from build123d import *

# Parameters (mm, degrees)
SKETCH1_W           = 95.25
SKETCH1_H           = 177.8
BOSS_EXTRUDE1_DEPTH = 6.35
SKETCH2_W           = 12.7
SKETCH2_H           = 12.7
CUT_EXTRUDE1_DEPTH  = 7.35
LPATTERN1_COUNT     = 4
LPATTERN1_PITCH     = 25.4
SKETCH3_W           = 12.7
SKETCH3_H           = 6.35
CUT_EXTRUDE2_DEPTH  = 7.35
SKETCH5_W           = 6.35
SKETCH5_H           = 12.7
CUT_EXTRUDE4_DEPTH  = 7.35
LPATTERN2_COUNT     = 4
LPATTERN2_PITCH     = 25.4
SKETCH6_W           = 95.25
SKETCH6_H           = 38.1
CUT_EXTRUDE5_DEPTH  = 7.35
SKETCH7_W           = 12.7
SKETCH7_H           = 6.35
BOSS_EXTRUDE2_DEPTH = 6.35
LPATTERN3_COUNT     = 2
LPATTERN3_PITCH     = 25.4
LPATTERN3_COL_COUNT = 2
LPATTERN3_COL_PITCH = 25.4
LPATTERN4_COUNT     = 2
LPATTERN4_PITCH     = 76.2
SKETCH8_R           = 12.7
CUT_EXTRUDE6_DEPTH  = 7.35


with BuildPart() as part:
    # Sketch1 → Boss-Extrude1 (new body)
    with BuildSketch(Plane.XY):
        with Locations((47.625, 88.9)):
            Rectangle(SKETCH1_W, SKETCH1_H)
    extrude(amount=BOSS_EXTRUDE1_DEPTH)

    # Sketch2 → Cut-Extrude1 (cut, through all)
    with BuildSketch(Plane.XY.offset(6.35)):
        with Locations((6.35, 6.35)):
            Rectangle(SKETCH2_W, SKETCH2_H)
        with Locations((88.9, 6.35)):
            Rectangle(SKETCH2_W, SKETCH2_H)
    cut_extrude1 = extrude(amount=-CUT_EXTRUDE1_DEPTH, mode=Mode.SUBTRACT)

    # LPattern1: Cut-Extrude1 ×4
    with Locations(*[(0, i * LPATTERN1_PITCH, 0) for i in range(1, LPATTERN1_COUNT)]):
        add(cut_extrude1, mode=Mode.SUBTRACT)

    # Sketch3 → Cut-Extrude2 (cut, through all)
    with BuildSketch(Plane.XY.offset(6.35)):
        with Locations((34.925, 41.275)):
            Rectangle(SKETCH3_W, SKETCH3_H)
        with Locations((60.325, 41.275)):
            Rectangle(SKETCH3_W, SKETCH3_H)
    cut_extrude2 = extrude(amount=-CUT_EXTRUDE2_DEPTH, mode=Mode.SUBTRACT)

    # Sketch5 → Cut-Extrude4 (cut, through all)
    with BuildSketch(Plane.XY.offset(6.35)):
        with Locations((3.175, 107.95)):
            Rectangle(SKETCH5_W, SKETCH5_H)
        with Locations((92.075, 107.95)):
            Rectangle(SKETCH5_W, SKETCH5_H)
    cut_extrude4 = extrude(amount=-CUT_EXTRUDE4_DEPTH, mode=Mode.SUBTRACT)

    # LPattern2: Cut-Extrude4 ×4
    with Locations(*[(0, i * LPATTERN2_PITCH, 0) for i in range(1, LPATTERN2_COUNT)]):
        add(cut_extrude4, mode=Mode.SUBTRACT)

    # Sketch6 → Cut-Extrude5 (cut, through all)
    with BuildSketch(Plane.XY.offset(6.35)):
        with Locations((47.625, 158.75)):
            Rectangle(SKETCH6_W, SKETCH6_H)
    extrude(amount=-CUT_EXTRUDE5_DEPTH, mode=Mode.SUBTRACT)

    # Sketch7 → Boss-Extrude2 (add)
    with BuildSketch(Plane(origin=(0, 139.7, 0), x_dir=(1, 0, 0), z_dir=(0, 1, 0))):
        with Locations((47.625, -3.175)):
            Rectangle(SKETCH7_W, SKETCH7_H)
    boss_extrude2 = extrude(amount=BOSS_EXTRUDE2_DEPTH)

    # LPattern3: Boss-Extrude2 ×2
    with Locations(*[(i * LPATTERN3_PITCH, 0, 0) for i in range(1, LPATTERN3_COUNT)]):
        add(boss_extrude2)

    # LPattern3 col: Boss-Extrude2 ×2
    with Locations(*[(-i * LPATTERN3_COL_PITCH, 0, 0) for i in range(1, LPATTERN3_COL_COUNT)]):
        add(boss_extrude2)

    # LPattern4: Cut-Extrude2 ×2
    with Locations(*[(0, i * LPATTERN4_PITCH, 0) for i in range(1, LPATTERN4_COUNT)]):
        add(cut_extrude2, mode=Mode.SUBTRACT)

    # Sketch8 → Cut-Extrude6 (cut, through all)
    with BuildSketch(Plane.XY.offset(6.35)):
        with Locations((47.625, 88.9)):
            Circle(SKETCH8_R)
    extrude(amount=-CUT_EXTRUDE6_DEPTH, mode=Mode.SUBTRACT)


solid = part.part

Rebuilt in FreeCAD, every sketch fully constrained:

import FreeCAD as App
import Part
import Sketcher
from FreeCAD import Vector
Q = App.Units.Quantity


def add_polygon(sketch, points):
    """Adds a closed chain of lines whose ends are joined by coincident constraints."""
    first, n = sketch.GeometryCount, len(points)
    for a, b in zip(points, points[1:] + points[:1]):
        sketch.addGeometry(Part.LineSegment(App.Vector(*a, 0), App.Vector(*b, 0)), False)
    for i in range(n):
        sketch.addConstraint(Sketcher.Constraint("Coincident", first + i, 2, first + (i + 1) % n, 1))

doc = App.newDocument("Part")
body = doc.addObject("PartDesign::Body", "Body")

# Sketch on XY plane
sketch1 = body.newObject("Sketcher::SketchObject", "Sketch")
sketch1.AttachmentSupport = (doc.getObject("XY_Plane"), [""])
sketch1.MapMode = "FlatFace"
add_polygon(sketch1, [(0, 178), (0, 0), (95, 0), (95, 178)])  # lines 0-3
sketch1.addConstraint([
    Sketcher.Constraint("Vertical", 0),
    Sketcher.Constraint("Horizontal", 1),
    Sketcher.Constraint("Vertical", 2),
    Sketcher.Constraint("Horizontal", 3),
    Sketcher.Constraint("Coincident", 0, 2, -1, 1),
    Sketcher.Constraint("DistanceY", 0, 2, 0, 1, Q("7 in")),
    Sketcher.Constraint("DistanceX", 1, 1, 1, 2, Q("3.75 in")),
])
pad1 = body.newObject("PartDesign::Pad", "Pad")
pad1.Profile = sketch1
pad1.Length = Q("0.25 in")

# Sketch on XY plane
sketch2 = body.newObject("Sketcher::SketchObject", "Sketch001")
sketch2.AttachmentSupport = (doc.getObject("XY_Plane"), [""])
sketch2.MapMode = "FlatFace"
sketch2.AttachmentOffset = App.Placement(Vector(0, 0, 0.25 * 25.4), App.Rotation())
add_polygon(sketch2, [(0, 13), (0, 0), (13, 0), (13, 13)])  # lines 0-3
add_polygon(sketch2, [(83, 13), (83, 0), (95, 0), (95, 13)])  # lines 4-7
sketch2.addConstraint([
    Sketcher.Constraint("Vertical", 0),
    Sketcher.Constraint("Horizontal", 1),
    Sketcher.Constraint("Vertical", 2),
    Sketcher.Constraint("Horizontal", 3),
    Sketcher.Constraint("Vertical", 4),
    Sketcher.Constraint("Horizontal", 5),
    Sketcher.Constraint("Vertical", 6),
    Sketcher.Constraint("Horizontal", 7),
    Sketcher.Constraint("Coincident", 0, 2, -1, 1),
    Sketcher.Constraint("PointOnObject", 4, 2, -1),
    Sketcher.Constraint("Horizontal", 3, 2, 6, 2),
    Sketcher.Constraint("Equal", 3, 5),
    Sketcher.Constraint("Equal", 7, 0),
    Sketcher.Constraint("DistanceX", 1, 1, 1, 2, Q("0.5 in")),
    Sketcher.Constraint("DistanceX", -1, 1, 4, 2, Q("3.25 in")),
])
pocket1 = body.newObject("PartDesign::Pocket", "Pocket")
pocket1.Profile = sketch2
pocket1.Type = "ThroughAll"
doc.recompute()

linearpattern = body.newObject("PartDesign::LinearPattern", "LinearPattern")
linearpattern.Originals = [pocket1]
linearpattern.Direction = (doc.getObject("Y_Axis"), [""])
linearpattern.Mode = "offset"
linearpattern.Offset = Q("1 in")
linearpattern.Occurrences = 4
body.Tip = linearpattern

# Sketch on XY plane
sketch3 = body.newObject("Sketcher::SketchObject", "Sketch002")
sketch3.AttachmentSupport = (doc.getObject("XY_Plane"), [""])
sketch3.MapMode = "FlatFace"
sketch3.AttachmentOffset = App.Placement(Vector(0, 0, 0.25 * 25.4), App.Rotation())
add_polygon(sketch3, [(29, 44), (29, 38), (41, 38), (41, 44)])  # lines 0-3
add_polygon(sketch3, [(54, 44), (54, 38), (67, 38), (67, 44)])  # lines 4-7
sketch3.addConstraint([
    Sketcher.Constraint("Vertical", 0),
    Sketcher.Constraint("Horizontal", 1),
    Sketcher.Constraint("Vertical", 2),
    Sketcher.Constraint("Horizontal", 3),
    Sketcher.Constraint("Vertical", 4),
    Sketcher.Constraint("Horizontal", 5),
    Sketcher.Constraint("Vertical", 6),
    Sketcher.Constraint("Horizontal", 7),
    Sketcher.Constraint("Horizontal", 1, 2, 4, 2),
    Sketcher.Constraint("Horizontal", 3, 2, 6, 2),
    Sketcher.Constraint("Equal", 3, 5),
    Sketcher.Constraint("DistanceX", 1, 1, 1, 2, Q("0.5 in")),
    Sketcher.Constraint("DistanceX", 0, 2, 4, 2, Q("1 in")),
    Sketcher.Constraint("DistanceY", 0, 2, 0, 1, Q("0.25 in")),
    Sketcher.Constraint("DistanceY", -1, 1, 0, 2, Q("1.5 in")),
    Sketcher.Constraint("DistanceX", -1, 1, 0, 2, Q("1.125 in")),
])
pocket2 = body.newObject("PartDesign::Pocket", "Pocket001")
pocket2.Profile = sketch3
pocket2.Type = "ThroughAll"

# Sketch on XY plane
sketch4 = body.newObject("Sketcher::SketchObject", "Sketch003")
sketch4.AttachmentSupport = (doc.getObject("XY_Plane"), [""])
sketch4.MapMode = "FlatFace"
sketch4.AttachmentOffset = App.Placement(Vector(0, 0, 0.25 * 25.4), App.Rotation())
add_polygon(sketch4, [(0, 114), (0, 102), (6, 102), (6, 114)])  # lines 0-3
add_polygon(sketch4, [(89, 114), (89, 102), (95, 102), (95, 114)])  # lines 4-7
sketch4.addConstraint([
    Sketcher.Constraint("Vertical", 0),
    Sketcher.Constraint("Horizontal", 1),
    Sketcher.Constraint("Vertical", 2),
    Sketcher.Constraint("Horizontal", 3),
    Sketcher.Constraint("Vertical", 4),
    Sketcher.Constraint("Horizontal", 5),
    Sketcher.Constraint("Vertical", 6),
    Sketcher.Constraint("Horizontal", 7),
    Sketcher.Constraint("PointOnObject", 0, 2, -2),
    Sketcher.Constraint("Horizontal", 1, 2, 4, 2),
    Sketcher.Constraint("Horizontal", 3, 2, 6, 2),
    Sketcher.Constraint("Equal", 3, 5),
    Sketcher.Constraint("DistanceY", 0, 2, 0, 1, Q("0.5 in")),
    Sketcher.Constraint("DistanceY", -1, 1, 0, 2, Q("4 in")),
    Sketcher.Constraint("DistanceX", 1, 1, 1, 2, Q("0.25 in")),
    Sketcher.Constraint("DistanceX", -1, 1, 4, 2, Q("3.5 in")),
])
pocket3 = body.newObject("PartDesign::Pocket", "Pocket002")
pocket3.Profile = sketch4
pocket3.Type = "ThroughAll"
doc.recompute()

linearpattern2 = body.newObject("PartDesign::LinearPattern", "LinearPattern001")
linearpattern2.Originals = [pocket3]
linearpattern2.Direction = (doc.getObject("Y_Axis"), [""])
linearpattern2.Mode = "offset"
linearpattern2.Offset = Q("1 in")
linearpattern2.Occurrences = 4
body.Tip = linearpattern2

# Sketch on XY plane
sketch5 = body.newObject("Sketcher::SketchObject", "Sketch004")
sketch5.AttachmentSupport = (doc.getObject("XY_Plane"), [""])
sketch5.MapMode = "FlatFace"
sketch5.AttachmentOffset = App.Placement(Vector(0, 0, 0.25 * 25.4), App.Rotation())
add_polygon(sketch5, [(0, 178), (0, 140), (95, 140), (95, 178)])  # lines 0-3
sketch5.addConstraint([
    Sketcher.Constraint("Vertical", 0),
    Sketcher.Constraint("Horizontal", 1),
    Sketcher.Constraint("Vertical", 2),
    Sketcher.Constraint("Horizontal", 3),
    Sketcher.Constraint("PointOnObject", 0, 2, -2),
    Sketcher.Constraint("DistanceY", 0, 2, 0, 1, Q("1.5 in")),
    Sketcher.Constraint("DistanceY", -1, 1, 2, 2, Q("7 in")),
    Sketcher.Constraint("DistanceX", 1, 1, 1, 2, Q("3.75 in")),
])
pocket4 = body.newObject("PartDesign::Pocket", "Pocket003")
pocket4.Profile = sketch5
pocket4.Type = "ThroughAll"

# Sketch on XZ plane
sketch6 = body.newObject("Sketcher::SketchObject", "Sketch005")
sketch6.AttachmentSupport = (doc.getObject("XZ_Plane"), [""])
sketch6.MapMode = "FlatFace"
sketch6.AttachmentOffset = App.Placement(Vector(0, 0, -5.5 * 25.4), App.Rotation())
add_polygon(sketch6, [(41, 0), (41, 6), (54, 6), (54, 0)])  # lines 0-3
sketch6.addConstraint([
    Sketcher.Constraint("Vertical", 0),
    Sketcher.Constraint("Horizontal", 1),
    Sketcher.Constraint("Vertical", 2),
    Sketcher.Constraint("Horizontal", 3),
    Sketcher.Constraint("PointOnObject", 2, 2, -1),
    Sketcher.Constraint("DistanceX", 1, 1, 1, 2, Q("0.5 in")),
    Sketcher.Constraint("DistanceY", 0, 1, 0, 2, Q("0.25 in")),
    Sketcher.Constraint("DistanceX", -1, 1, 0, 2, Q("1.625 in")),
])
pad2 = body.newObject("PartDesign::Pad", "Pad001")
pad2.Profile = sketch6
pad2.Length = Q("0.25 in")
pad2.Reversed = True
doc.recompute()

linearpattern3 = body.newObject("PartDesign::LinearPattern", "LinearPattern002")
linearpattern3.Originals = [pad2]
linearpattern3.Direction = (doc.getObject("X_Axis"), [""])
linearpattern3.Mode = "offset"
linearpattern3.Offset = Q("1 in")
linearpattern3.Occurrences = 2
body.Tip = linearpattern3
doc.recompute()

linearpattern4 = body.newObject("PartDesign::LinearPattern", "LinearPattern003")
linearpattern4.Originals = [pad2]
linearpattern4.Direction = (doc.getObject("X_Axis"), [""])
linearpattern4.Mode = "offset"
linearpattern4.Offset = Q("1 in")
linearpattern4.Occurrences = 2
linearpattern4.Reversed = True
body.Tip = linearpattern4
doc.recompute()

linearpattern5 = body.newObject("PartDesign::LinearPattern", "LinearPattern004")
linearpattern5.Originals = [pocket2]
linearpattern5.Direction = (doc.getObject("Y_Axis"), [""])
linearpattern5.Mode = "offset"
linearpattern5.Offset = Q("3 in")
linearpattern5.Occurrences = 2
body.Tip = linearpattern5

# Sketch on XY plane
sketch7 = body.newObject("Sketcher::SketchObject", "Sketch006")
sketch7.AttachmentSupport = (doc.getObject("XY_Plane"), [""])
sketch7.MapMode = "FlatFace"
sketch7.AttachmentOffset = App.Placement(Vector(0, 0, 0.25 * 25.4), App.Rotation())
sketch7.addGeometry(Part.Circle(Vector(48, 89, 0), Vector(0, 0, 1), 13), False)
sketch7.addConstraint([
    Sketcher.Constraint("Diameter", 0, Q("1 in")),
    Sketcher.Constraint("DistanceY", -1, 1, 0, 3, Q("3.5 in")),
    Sketcher.Constraint("DistanceX", -1, 1, 0, 3, Q("1.875 in")),
])
pocket5 = body.newObject("PartDesign::Pocket", "Pocket004")
pocket5.Profile = sketch7
pocket5.Type = "ThroughAll"

doc.recompute()
